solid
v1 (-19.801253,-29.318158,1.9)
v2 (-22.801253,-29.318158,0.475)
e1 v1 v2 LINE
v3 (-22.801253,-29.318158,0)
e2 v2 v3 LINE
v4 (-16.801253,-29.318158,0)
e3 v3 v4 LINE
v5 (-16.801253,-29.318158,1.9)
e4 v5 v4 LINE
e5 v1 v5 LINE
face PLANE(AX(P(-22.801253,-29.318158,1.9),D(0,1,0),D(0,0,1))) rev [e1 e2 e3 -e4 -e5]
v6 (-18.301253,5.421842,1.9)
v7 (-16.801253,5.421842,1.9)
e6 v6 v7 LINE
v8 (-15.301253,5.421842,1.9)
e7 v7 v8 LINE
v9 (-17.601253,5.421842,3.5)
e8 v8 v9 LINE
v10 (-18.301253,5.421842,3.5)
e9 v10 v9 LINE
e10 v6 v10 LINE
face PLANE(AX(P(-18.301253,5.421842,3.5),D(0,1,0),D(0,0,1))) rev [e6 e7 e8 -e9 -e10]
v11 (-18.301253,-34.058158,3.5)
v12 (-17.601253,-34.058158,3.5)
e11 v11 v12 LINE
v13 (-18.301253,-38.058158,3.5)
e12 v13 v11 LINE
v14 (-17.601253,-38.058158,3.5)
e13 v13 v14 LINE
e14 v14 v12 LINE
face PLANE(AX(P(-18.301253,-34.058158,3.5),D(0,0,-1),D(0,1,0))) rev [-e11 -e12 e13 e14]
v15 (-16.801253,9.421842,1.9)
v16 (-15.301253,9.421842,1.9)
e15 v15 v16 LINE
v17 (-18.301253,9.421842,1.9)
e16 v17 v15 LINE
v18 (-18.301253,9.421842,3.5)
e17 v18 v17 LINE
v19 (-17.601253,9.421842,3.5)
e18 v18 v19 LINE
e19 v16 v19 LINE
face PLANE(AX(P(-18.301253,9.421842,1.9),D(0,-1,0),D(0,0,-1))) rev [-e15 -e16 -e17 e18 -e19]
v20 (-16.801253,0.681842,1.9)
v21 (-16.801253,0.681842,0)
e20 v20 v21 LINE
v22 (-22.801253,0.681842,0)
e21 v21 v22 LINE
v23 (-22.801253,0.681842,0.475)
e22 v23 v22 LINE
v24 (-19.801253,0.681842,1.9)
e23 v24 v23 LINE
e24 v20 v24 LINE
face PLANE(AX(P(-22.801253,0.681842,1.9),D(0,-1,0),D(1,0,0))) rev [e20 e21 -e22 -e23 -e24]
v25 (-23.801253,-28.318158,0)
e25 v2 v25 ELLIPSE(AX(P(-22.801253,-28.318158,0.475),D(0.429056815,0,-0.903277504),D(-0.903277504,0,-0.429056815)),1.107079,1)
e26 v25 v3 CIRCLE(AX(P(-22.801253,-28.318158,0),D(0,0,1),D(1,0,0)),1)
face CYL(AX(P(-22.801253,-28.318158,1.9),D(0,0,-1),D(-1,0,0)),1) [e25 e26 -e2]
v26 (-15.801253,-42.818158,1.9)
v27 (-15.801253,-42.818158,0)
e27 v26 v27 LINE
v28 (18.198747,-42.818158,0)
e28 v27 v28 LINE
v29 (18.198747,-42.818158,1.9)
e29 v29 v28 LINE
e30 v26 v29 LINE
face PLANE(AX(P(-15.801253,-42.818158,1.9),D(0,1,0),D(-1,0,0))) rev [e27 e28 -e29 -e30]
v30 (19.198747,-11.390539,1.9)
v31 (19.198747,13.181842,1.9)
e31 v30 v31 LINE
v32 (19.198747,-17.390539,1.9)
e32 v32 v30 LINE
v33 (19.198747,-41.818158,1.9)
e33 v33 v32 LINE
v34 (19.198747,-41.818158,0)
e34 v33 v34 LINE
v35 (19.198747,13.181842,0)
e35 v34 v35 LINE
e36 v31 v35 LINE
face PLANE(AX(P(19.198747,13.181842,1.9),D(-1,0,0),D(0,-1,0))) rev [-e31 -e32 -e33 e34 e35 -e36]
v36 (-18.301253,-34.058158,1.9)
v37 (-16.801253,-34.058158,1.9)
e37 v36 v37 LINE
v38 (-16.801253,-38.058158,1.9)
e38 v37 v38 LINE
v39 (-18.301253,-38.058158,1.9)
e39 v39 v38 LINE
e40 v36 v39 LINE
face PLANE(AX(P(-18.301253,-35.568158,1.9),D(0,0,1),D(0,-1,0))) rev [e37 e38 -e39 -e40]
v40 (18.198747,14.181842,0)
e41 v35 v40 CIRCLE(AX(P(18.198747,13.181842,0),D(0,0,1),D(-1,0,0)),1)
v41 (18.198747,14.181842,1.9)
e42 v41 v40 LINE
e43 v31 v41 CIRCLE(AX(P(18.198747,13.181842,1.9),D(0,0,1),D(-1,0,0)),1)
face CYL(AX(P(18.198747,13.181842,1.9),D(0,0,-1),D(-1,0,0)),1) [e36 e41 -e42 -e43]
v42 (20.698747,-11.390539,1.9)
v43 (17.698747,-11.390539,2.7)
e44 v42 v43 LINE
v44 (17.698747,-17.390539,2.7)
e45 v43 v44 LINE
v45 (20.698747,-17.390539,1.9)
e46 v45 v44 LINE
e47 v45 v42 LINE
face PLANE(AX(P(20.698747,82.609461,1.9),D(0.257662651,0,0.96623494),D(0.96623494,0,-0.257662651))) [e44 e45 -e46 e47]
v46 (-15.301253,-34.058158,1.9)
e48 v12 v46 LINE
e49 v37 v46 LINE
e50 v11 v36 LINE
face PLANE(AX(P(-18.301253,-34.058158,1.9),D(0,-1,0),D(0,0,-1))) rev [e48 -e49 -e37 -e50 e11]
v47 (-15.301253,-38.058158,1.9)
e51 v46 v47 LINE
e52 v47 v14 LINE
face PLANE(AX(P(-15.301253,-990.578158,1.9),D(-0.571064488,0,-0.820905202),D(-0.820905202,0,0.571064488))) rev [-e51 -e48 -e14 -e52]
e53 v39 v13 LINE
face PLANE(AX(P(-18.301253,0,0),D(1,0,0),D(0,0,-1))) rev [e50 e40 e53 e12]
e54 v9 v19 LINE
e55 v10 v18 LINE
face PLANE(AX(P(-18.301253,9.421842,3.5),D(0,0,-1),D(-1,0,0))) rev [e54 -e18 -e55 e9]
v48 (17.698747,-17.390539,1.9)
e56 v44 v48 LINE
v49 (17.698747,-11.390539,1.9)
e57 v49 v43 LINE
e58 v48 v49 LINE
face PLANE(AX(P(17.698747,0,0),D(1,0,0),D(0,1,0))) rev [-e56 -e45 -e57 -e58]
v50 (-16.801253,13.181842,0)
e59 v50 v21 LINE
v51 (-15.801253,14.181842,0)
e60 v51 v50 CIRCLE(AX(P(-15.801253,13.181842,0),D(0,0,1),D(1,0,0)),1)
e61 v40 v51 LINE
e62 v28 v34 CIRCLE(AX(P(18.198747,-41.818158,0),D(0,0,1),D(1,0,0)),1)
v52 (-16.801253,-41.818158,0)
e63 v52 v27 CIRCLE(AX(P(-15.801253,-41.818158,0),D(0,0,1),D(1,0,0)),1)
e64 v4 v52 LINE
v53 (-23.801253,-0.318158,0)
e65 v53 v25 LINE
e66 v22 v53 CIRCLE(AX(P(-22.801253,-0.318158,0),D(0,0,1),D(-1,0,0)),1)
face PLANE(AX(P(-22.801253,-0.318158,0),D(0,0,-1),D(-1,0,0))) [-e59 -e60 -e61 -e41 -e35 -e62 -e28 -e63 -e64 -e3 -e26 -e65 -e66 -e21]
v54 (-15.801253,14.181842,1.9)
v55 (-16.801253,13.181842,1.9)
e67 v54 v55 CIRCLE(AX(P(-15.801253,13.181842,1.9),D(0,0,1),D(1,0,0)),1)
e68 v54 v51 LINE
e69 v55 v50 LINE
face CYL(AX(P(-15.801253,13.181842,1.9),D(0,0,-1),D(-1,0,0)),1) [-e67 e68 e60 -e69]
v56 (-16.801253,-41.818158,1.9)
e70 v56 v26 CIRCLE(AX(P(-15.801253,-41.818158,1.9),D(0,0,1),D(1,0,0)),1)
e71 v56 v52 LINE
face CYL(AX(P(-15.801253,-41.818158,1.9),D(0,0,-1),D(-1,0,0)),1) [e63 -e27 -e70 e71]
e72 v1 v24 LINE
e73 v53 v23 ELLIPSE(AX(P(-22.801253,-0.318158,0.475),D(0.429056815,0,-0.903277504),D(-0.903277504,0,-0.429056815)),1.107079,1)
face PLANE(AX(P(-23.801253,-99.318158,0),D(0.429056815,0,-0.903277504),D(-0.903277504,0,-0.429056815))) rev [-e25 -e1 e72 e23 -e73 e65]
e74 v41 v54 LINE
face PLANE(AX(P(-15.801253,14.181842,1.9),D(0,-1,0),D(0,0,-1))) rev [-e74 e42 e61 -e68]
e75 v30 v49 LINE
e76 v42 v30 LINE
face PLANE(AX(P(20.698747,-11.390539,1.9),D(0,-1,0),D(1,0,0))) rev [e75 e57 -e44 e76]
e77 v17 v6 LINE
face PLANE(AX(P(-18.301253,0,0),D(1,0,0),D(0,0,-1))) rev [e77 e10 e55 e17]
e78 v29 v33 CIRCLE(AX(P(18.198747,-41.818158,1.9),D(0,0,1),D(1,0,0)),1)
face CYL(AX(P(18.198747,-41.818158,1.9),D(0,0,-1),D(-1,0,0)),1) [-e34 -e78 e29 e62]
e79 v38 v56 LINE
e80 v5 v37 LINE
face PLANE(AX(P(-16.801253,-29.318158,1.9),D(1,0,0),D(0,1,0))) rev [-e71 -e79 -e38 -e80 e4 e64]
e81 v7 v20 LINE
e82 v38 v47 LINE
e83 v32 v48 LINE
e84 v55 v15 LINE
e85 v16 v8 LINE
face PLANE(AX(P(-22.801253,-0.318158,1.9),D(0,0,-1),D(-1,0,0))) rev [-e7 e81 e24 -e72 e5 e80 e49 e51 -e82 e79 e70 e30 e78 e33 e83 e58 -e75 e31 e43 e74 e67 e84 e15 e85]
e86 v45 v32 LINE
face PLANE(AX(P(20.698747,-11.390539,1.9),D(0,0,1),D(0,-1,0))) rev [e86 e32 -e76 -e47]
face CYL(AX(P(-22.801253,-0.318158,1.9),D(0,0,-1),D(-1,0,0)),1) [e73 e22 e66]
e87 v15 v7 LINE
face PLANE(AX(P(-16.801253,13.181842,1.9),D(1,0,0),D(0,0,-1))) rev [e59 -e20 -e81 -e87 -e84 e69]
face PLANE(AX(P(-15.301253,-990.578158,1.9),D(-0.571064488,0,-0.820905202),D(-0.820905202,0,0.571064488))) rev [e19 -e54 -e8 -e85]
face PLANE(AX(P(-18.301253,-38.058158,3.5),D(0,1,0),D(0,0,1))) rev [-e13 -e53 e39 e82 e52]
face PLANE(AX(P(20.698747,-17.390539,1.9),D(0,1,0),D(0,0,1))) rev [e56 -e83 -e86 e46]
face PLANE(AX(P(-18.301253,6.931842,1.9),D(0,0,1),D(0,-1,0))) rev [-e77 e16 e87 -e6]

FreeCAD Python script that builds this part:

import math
import FreeCAD as App
import Part
import Sketcher

V = App.Vector
Q = App.Units.Quantity

doc = App.newDocument("Part")
body = doc.addObject("PartDesign::Body", "Body")

sketch1 = doc.addObject("Sketcher::SketchObject", "Sketch")
body.addObject(sketch1)
sketch1.AttachmentSupport = (doc.XY_Plane, [""])
sketch1.MapMode = "FlatFace"
sketch1.addGeometry([
    Part.LineSegment(V(-23.8, -0.3, 0), V(-23.8, -28.3, 0)),
    Part.ArcOfCircle(Part.Circle(V(-22.8, -28.3, 0), V(0, 0, 1), 1), math.radians(180), math.radians(270)),
    Part.LineSegment(V(-22.8, -29.3, 0), V(-16.8, -29.3, 0)),
    Part.LineSegment(V(-16.8, -29.3, 0), V(-16.8, -41.8, 0)),
    Part.ArcOfCircle(Part.Circle(V(-15.8, -41.8, 0), V(0, 0, 1), 1), math.radians(180), math.radians(270)),
    Part.LineSegment(V(-15.8, -42.8, 0), V(18.2, -42.8, 0)),
    Part.ArcOfCircle(Part.Circle(V(18.2, -41.8, 0), V(0, 0, 1), 1), math.radians(-90), math.radians(0)),
    Part.LineSegment(V(19.2, -41.8, 0), V(19.2, 13.2, 0)),
    Part.ArcOfCircle(Part.Circle(V(18.2, 13.2, 0), V(0, 0, 1), 1), math.radians(0), math.radians(90)),
    Part.LineSegment(V(18.2, 14.2, 0), V(-15.8, 14.2, 0)),
    Part.ArcOfCircle(Part.Circle(V(-15.8, 13.2, 0), V(0, 0, 1), 1), math.radians(90), math.radians(180)),
    Part.LineSegment(V(-16.8, 13.2, 0), V(-16.8, 0.7, 0)),
    Part.LineSegment(V(-16.8, 0.7, 0), V(-22.8, 0.7, 0)),
    Part.ArcOfCircle(Part.Circle(V(-22.8, -0.3, 0), V(0, 0, 1), 1), math.radians(90), math.radians(180)),
], False)
sketch1.addConstraint([
    Sketcher.Constraint("Tangent", 0, 2, 1, 1),
    Sketcher.Constraint("Tangent", 1, 2, 2, 1),
    Sketcher.Constraint("Coincident", 2, 2, 3, 1),
    Sketcher.Constraint("Tangent", 3, 2, 4, 1),
    Sketcher.Constraint("Tangent", 4, 2, 5, 1),
    Sketcher.Constraint("Tangent", 5, 2, 6, 1),
    Sketcher.Constraint("Tangent", 6, 2, 7, 1),
    Sketcher.Constraint("Tangent", 7, 2, 8, 1),
    Sketcher.Constraint("Tangent", 8, 2, 9, 1),
    Sketcher.Constraint("Tangent", 9, 2, 10, 1),
    Sketcher.Constraint("Tangent", 10, 2, 11, 1),
    Sketcher.Constraint("Coincident", 11, 2, 12, 1),
    Sketcher.Constraint("Tangent", 12, 2, 13, 1),
    Sketcher.Constraint("Tangent", 13, 2, 0, 1),
    Sketcher.Constraint("Vertical", 0),
    Sketcher.Constraint("Horizontal", 2),
    Sketcher.Constraint("Vertical", 3),
    Sketcher.Constraint("Horizontal", 5),
    Sketcher.Constraint("Vertical", 7),
    Sketcher.Constraint("Horizontal", 9),
    Sketcher.Constraint("Vertical", 11),
    Sketcher.Constraint("Horizontal", 12),
    Sketcher.Constraint("Equal", 1, 4),
    Sketcher.Constraint("Equal", 4, 6),
    Sketcher.Constraint("Equal", 6, 8),
    Sketcher.Constraint("Equal", 8, 10),
    Sketcher.Constraint("Equal", 10, 13),
    Sketcher.Constraint("Vertical", 4, 3, 10, 3),
    Sketcher.Constraint("Equal", 3, 11),
    Sketcher.Constraint("Radius", 1, Q("1 mm")),
    Sketcher.Constraint("DistanceX", 2, 1, 2, 2, Q("6 mm")),
    Sketcher.Constraint("DistanceX", 5, 1, 5, 2, Q("34 mm")),
    Sketcher.Constraint("DistanceY", 0, 2, 0, 1, Q("28 mm")),
    Sketcher.Constraint("DistanceY", 7, 1, 7, 2, Q("55 mm")),
    Sketcher.Constraint("DistanceX", 1, 3, -1, 1, Q("22.801253 mm")),
    Sketcher.Constraint("DistanceY", 1, 3, -1, 1, Q("28.318158 mm")),
])
pad1 = doc.addObject("PartDesign::Pad", "Pad")
body.addObject(pad1)
pad1.Profile = sketch1
pad1.Length = 1.9

sketch2 = doc.addObject("Sketcher::SketchObject", "Sketch001")
body.addObject(sketch2)
sketch2.AttachmentSupport = (doc.YZ_Plane, [""])
sketch2.MapMode = "FlatFace"
sketch2.AttachmentOffset = App.Placement(V(0, 0, -16.801253), App.Rotation())
sketch2.addGeometry([
    Part.LineSegment(V(-34.1, 1.9, 0), V(-38.1, 1.9, 0)),
    Part.LineSegment(V(-38.1, 1.9, 0), V(-38.1, 3.5, 0)),
    Part.LineSegment(V(-38.1, 3.5, 0), V(-34.1, 3.5, 0)),
    Part.LineSegment(V(-34.1, 3.5, 0), V(-34.1, 1.9, 0)),
    Part.LineSegment(V(9.4, 1.9, 0), V(5.4, 1.9, 0)),
    Part.LineSegment(V(5.4, 1.9, 0), V(5.4, 3.5, 0)),
    Part.LineSegment(V(5.4, 3.5, 0), V(9.4, 3.5, 0)),
    Part.LineSegment(V(9.4, 3.5, 0), V(9.4, 1.9, 0)),
], False)
sketch2.addConstraint([
    Sketcher.Constraint("Coincident", 0, 2, 1, 1),
    Sketcher.Constraint("Coincident", 1, 2, 2, 1),
    Sketcher.Constraint("Coincident", 2, 2, 3, 1),
    Sketcher.Constraint("Coincident", 3, 2, 0, 1),
    Sketcher.Constraint("Coincident", 4, 2, 5, 1),
    Sketcher.Constraint("Coincident", 5, 2, 6, 1),
    Sketcher.Constraint("Coincident", 6, 2, 7, 1),
    Sketcher.Constraint("Coincident", 7, 2, 4, 1),
    Sketcher.Constraint("Horizontal", 0),
    Sketcher.Constraint("Vertical", 1),
    Sketcher.Constraint("Horizontal", 2),
    Sketcher.Constraint("Vertical", 3),
    Sketcher.Constraint("Horizontal", 4),
    Sketcher.Constraint("Vertical", 5),
    Sketcher.Constraint("Horizontal", 6),
    Sketcher.Constraint("Vertical", 7),
    Sketcher.Constraint("Horizontal", 3, 2, 4, 2),
    Sketcher.Constraint("Horizontal", 2, 2, 5, 2),
    Sketcher.Constraint("Equal", 2, 4),
    Sketcher.Constraint("DistanceX", 0, 2, 0, 1, Q("4 mm")),
    Sketcher.Constraint("DistanceY", 1, 1, 1, 2, Q("1.6 mm")),
    Sketcher.Constraint("DistanceY", -1, 1, 0, 2, Q("1.9 mm")),
    Sketcher.Constraint("DistanceX", 3, 2, 4, 2, Q("39.48 mm")),
    Sketcher.Constraint("DistanceX", 0, 2, -1, 1, Q("38.058158 mm")),
])
pad2 = doc.addObject("PartDesign::Pad", "Pad001")
body.addObject(pad2)
pad2.Profile = sketch2
pad2.Length = 3
pad2.Midplane = True

sketch3 = doc.addObject("Sketcher::SketchObject", "Sketch002")
body.addObject(sketch3)
sketch3.AttachmentSupport = (doc.XZ_Plane, [""])
sketch3.MapMode = "FlatFace"
sketch3.AttachmentOffset = App.Placement(V(0, 0, -0.681842), App.Rotation())
sketch3.addGeometry([
    Part.LineSegment(V(-19.8, 1.9, 0), V(-23.8, 0, 0)),
    Part.LineSegment(V(-23.8, 0, 0), V(-23.8, 1.9, 0)),
    Part.LineSegment(V(-23.8, 1.9, 0), V(-19.8, 1.9, 0)),
], False)
sketch3.addConstraint([
    Sketcher.Constraint("Coincident", 0, 2, 1, 1),
    Sketcher.Constraint("Coincident", 1, 2, 2, 1),
    Sketcher.Constraint("Coincident", 2, 2, 0, 1),
    Sketcher.Constraint("Vertical", 1),
    Sketcher.Constraint("Horizontal", 2),
    Sketcher.Constraint("PointOnObject", 0, 2, -1),
    Sketcher.Constraint("DistanceX", 2, 1, 2, 2, Q("4 mm")),
    Sketcher.Constraint("DistanceY", 1, 1, 1, 2, Q("1.9 mm")),
    Sketcher.Constraint("DistanceX", 0, 2, -1, 1, Q("23.801253 mm")),
])
pocket1 = doc.addObject("PartDesign::Pocket", "Pocket")
body.addObject(pocket1)
pocket1.Profile = sketch3
pocket1.Length = 100
pocket1.Reversed = True

sketch4 = doc.addObject("Sketcher::SketchObject", "Sketch003")
body.addObject(sketch4)
sketch4.AttachmentSupport = (doc.YZ_Plane, [""])
sketch4.MapMode = "FlatFace"
sketch4.AttachmentOffset = App.Placement(V(0, 0, 19.198747), App.Rotation())
sketch4.addGeometry([
    Part.LineSegment(V(-11.4, 2.7, 0), V(-17.4, 2.7, 0)),
    Part.LineSegment(V(-17.4, 2.7, 0), V(-17.4, 1.9, 0)),
    Part.LineSegment(V(-17.4, 1.9, 0), V(-11.4, 1.9, 0)),
    Part.LineSegment(V(-11.4, 1.9, 0), V(-11.4, 2.7, 0)),
], False)
sketch4.addConstraint([
    Sketcher.Constraint("Coincident", 0, 2, 1, 1),
    Sketcher.Constraint("Coincident", 1, 2, 2, 1),
    Sketcher.Constraint("Coincident", 2, 2, 3, 1),
    Sketcher.Constraint("Coincident", 3, 2, 0, 1),
    Sketcher.Constraint("Horizontal", 0),
    Sketcher.Constraint("Vertical", 1),
    Sketcher.Constraint("Horizontal", 2),
    Sketcher.Constraint("Vertical", 3),
    Sketcher.Constraint("DistanceX", 0, 2, 0, 1, Q("6 mm")),
    Sketcher.Constraint("DistanceY", 1, 2, 1, 1, Q("0.8 mm")),
    Sketcher.Constraint("DistanceY", -1, 1, 0, 2, Q("2.7 mm")),
    Sketcher.Constraint("DistanceX", 0, 2, -1, 1, Q("17.390539 mm")),
])
pad3 = doc.addObject("PartDesign::Pad", "Pad002")
body.addObject(pad3)
pad3.Profile = sketch4
pad3.Length = 3
pad3.Midplane = True

sketch5 = doc.addObject("Sketcher::SketchObject", "Sketch004")
body.addObject(sketch5)
sketch5.AttachmentSupport = (doc.XZ_Plane, [""])
sketch5.MapMode = "FlatFace"
sketch5.AttachmentOffset = App.Placement(V(0, 0, 17.390539), App.Rotation())
sketch5.addGeometry([
    Part.LineSegment(V(17.7, 2.7, 0), V(20.7, 1.9, 0)),
    Part.LineSegment(V(20.7, 1.9, 0), V(20.7, 2.7, 0)),
    Part.LineSegment(V(20.7, 2.7, 0), V(17.7, 2.7, 0)),
], False)
sketch5.addConstraint([
    Sketcher.Constraint("Coincident", 0, 2, 1, 1),
    Sketcher.Constraint("Coincident", 1, 2, 2, 1),
    Sketcher.Constraint("Coincident", 2, 2, 0, 1),
    Sketcher.Constraint("Vertical", 1),
    Sketcher.Constraint("Horizontal", 2),
    Sketcher.Constraint("DistanceX", 2, 2, 2, 1, Q("3 mm")),
    Sketcher.Constraint("DistanceY", 1, 1, 1, 2, Q("0.8 mm")),
    Sketcher.Constraint("DistanceY", -1, 1, 0, 2, Q("1.9 mm")),
    Sketcher.Constraint("DistanceX", -1, 1, 0, 2, Q("20.698747 mm")),
])
pocket2 = doc.addObject("PartDesign::Pocket", "Pocket001")
body.addObject(pocket2)
pocket2.Profile = sketch5
pocket2.Length = 100

sketch6 = doc.addObject("Sketcher::SketchObject", "Sketch005")
body.addObject(sketch6)
sketch6.AttachmentSupport = (doc.XZ_Plane, [""])
sketch6.MapMode = "FlatFace"
sketch6.AttachmentOffset = App.Placement(V(0, 0, -9.421842), App.Rotation())
sketch6.addGeometry([
    Part.LineSegment(V(-15.3, 1.9, 0), V(-17.6, 3.5, 0)),
    Part.LineSegment(V(-17.6, 3.5, 0), V(-15.3, 3.5, 0)),
    Part.LineSegment(V(-15.3, 3.5, 0), V(-15.3, 1.9, 0)),
], False)
sketch6.addConstraint([
    Sketcher.Constraint("Coincident", 0, 2, 1, 1),
    Sketcher.Constraint("Coincident", 1, 2, 2, 1),
    Sketcher.Constraint("Coincident", 2, 2, 0, 1),
    Sketcher.Constraint("Horizontal", 1),
    Sketcher.Constraint("Vertical", 2),
    Sketcher.Constraint("DistanceX", 1, 1, 1, 2, Q("2.3 mm")),
    Sketcher.Constraint("DistanceY", 2, 2, 2, 1, Q("1.6 mm")),
    Sketcher.Constraint("DistanceY", -1, 1, 0, 2, Q("3.5 mm")),
    Sketcher.Constraint("DistanceX", 0, 2, -1, 1, Q("17.601253 mm")),
])
pocket3 = doc.addObject("PartDesign::Pocket", "Pocket002")
body.addObject(pocket3)
pocket3.Profile = sketch6
pocket3.Length = 1000
pocket3.Reversed = True

doc.recompute()
